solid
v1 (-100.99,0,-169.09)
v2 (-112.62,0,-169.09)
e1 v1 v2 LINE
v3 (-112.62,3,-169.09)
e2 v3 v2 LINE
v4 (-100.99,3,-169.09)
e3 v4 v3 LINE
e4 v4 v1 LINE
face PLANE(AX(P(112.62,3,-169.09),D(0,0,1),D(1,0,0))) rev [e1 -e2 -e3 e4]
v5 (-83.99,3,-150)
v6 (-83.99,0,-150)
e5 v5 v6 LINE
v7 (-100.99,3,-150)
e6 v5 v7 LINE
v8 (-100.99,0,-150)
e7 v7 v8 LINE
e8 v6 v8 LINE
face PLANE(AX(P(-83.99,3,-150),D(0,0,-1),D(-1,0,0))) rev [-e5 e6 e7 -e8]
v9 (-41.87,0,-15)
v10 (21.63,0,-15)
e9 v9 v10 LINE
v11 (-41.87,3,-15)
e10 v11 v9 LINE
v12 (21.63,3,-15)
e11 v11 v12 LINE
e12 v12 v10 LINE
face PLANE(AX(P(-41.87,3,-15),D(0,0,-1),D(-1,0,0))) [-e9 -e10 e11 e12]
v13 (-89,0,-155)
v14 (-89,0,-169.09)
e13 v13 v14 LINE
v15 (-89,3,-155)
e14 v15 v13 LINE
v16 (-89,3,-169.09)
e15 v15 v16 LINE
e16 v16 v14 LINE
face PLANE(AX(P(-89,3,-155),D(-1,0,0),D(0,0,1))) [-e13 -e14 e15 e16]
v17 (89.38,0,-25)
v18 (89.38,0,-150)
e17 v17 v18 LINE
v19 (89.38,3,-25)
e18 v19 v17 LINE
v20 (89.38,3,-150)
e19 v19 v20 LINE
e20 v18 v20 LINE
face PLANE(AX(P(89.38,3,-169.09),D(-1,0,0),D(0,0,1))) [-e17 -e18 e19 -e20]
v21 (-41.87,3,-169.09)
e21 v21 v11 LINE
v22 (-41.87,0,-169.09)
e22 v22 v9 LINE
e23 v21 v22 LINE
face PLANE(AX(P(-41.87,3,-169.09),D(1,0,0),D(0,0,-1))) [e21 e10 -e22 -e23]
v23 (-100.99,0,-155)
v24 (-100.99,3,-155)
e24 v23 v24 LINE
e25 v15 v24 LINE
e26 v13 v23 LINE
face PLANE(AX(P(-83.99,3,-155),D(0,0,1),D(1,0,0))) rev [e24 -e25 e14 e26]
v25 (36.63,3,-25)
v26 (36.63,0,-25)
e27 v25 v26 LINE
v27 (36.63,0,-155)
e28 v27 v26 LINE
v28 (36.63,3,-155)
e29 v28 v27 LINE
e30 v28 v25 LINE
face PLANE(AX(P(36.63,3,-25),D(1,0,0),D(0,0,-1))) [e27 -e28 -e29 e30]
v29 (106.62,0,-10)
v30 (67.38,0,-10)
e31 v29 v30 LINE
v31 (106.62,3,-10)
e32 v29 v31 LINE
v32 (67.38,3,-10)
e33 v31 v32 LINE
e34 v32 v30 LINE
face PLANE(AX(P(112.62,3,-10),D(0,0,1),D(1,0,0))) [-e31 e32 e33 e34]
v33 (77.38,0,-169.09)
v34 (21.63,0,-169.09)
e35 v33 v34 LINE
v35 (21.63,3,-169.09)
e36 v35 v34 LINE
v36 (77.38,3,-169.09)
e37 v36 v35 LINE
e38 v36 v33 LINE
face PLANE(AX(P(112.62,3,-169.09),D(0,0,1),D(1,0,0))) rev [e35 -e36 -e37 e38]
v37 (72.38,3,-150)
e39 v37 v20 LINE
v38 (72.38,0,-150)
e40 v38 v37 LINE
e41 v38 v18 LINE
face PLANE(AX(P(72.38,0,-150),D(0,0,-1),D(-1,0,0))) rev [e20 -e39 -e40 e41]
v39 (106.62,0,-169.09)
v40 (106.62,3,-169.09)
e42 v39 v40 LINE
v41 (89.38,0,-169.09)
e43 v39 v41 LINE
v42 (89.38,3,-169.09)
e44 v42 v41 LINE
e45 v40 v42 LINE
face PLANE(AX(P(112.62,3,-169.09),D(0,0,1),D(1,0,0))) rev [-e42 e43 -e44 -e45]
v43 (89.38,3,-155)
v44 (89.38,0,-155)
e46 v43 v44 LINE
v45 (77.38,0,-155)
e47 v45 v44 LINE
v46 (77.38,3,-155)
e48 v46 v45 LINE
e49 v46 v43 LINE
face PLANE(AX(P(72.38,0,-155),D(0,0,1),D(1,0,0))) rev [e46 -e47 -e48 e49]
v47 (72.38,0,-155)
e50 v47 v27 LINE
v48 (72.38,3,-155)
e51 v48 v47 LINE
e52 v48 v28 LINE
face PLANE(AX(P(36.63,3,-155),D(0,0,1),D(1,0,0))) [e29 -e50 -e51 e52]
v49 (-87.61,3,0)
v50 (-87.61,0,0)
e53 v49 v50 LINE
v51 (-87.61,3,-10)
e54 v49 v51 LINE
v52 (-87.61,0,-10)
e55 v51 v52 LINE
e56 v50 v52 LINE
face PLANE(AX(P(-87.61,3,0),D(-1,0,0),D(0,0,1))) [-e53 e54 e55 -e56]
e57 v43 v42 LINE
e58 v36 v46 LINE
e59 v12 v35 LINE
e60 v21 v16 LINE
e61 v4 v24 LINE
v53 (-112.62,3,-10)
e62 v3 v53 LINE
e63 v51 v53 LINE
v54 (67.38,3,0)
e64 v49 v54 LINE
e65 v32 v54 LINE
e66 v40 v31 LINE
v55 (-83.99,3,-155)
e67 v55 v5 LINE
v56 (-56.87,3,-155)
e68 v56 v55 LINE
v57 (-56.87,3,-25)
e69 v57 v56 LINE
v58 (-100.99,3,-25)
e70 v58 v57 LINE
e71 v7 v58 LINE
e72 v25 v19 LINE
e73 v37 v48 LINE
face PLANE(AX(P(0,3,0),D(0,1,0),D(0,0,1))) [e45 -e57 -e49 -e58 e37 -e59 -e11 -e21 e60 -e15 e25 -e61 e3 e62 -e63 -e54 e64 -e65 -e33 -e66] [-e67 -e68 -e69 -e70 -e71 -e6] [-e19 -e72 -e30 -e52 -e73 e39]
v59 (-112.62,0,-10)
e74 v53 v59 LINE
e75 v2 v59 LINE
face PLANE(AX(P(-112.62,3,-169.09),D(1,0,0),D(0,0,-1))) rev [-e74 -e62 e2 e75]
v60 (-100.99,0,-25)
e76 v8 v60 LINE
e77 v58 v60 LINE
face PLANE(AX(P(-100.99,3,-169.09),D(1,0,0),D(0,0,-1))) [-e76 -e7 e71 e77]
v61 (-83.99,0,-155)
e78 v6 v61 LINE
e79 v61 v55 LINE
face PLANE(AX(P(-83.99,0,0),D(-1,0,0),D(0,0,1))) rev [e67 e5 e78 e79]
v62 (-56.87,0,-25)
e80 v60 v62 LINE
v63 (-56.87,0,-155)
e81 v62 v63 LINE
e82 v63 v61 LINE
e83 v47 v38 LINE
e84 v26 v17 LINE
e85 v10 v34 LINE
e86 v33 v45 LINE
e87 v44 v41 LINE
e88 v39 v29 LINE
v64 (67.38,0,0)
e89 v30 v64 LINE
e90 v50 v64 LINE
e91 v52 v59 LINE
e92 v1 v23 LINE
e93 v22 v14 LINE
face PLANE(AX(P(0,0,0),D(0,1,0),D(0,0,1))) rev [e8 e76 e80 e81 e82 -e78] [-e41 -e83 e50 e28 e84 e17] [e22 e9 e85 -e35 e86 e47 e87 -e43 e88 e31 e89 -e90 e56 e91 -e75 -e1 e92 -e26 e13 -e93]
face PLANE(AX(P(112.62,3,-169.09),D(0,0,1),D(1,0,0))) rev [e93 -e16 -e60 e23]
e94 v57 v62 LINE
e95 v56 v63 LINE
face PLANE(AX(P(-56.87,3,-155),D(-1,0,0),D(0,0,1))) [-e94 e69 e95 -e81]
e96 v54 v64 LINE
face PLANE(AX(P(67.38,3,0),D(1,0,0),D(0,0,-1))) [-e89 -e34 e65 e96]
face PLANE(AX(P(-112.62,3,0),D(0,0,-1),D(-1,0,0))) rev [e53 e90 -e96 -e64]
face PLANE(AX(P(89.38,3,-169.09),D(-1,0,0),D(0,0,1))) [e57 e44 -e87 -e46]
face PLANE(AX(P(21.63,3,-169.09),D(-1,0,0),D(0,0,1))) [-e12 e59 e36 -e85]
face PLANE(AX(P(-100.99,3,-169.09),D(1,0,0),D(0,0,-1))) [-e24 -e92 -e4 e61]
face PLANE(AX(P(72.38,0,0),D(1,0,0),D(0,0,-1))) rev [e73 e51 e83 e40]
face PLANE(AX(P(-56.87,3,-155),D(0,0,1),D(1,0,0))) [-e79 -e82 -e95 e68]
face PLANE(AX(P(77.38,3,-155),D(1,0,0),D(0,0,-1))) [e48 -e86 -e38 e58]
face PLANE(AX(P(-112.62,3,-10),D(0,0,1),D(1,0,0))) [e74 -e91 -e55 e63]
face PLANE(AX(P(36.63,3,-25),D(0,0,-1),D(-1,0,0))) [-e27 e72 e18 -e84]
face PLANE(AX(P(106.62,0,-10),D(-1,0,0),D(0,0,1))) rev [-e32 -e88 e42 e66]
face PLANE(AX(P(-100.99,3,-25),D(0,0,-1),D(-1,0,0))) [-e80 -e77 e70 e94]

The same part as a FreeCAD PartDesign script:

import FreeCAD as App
import Part
import Sketcher
Q = App.Units.Quantity

doc = App.newDocument("Part")
body = doc.addObject("PartDesign::Body", "Body")

# Sketch on XZ plane
sketch1 = body.newObject("Sketcher::SketchObject", "Sketch")
sketch1.AttachmentSupport = (doc.getObject("XZ_Plane"), [""])
sketch1.MapMode = "FlatFace"
sketch1.addGeometry([
    Part.LineSegment(App.Vector(-112.62, -169.09, 0), App.Vector(-112.62, 0, 0)),
    Part.LineSegment(App.Vector(-112.62, 0, 0), App.Vector(112.62, 0, 0)),
    Part.LineSegment(App.Vector(112.62, 0, 0), App.Vector(112.62, -169.09, 0)),
    Part.LineSegment(App.Vector(112.62, -169.09, 0), App.Vector(-112.62, -169.09, 0)),
], False)
sketch1.addConstraint([
    Sketcher.Constraint("Coincident", 0, 2, 1, 1),
    Sketcher.Constraint("Coincident", 1, 2, 2, 1),
    Sketcher.Constraint("Coincident", 2, 2, 3, 1),
    Sketcher.Constraint("Coincident", 3, 2, 0, 1),
    Sketcher.Constraint("Vertical", 0),
    Sketcher.Constraint("Horizontal", 1),
    Sketcher.Constraint("Vertical", 2),
    Sketcher.Constraint("Horizontal", 3),
    Sketcher.Constraint("Symmetric", 0, 2, 1, 2, -1, 1),
    Sketcher.Constraint("DistanceX", 1, 1, 1, 2, Q("225.24 mm")),
    Sketcher.Constraint("DistanceY", 0, 1, 0, 2, Q("169.09 mm")),
])
pad1 = body.newObject("PartDesign::Pad", "Pad")
pad1.Profile = sketch1
pad1.Length = 3
pad1.Reversed = True

# Sketch on XZ plane
sketch2 = body.newObject("Sketcher::SketchObject", "Sketch001")
sketch2.AttachmentSupport = (doc.getObject("XZ_Plane"), [""])
sketch2.MapMode = "FlatFace"
sketch2.addGeometry([
    Part.LineSegment(App.Vector(36.63, -155, 0), App.Vector(36.63, -25, 0)),  # 0
    Part.LineSegment(App.Vector(36.63, -25, 0), App.Vector(89.38, -25, 0)),  # 1
    Part.LineSegment(App.Vector(89.38, -25, 0), App.Vector(89.38, -169.09, 0)),  # 2
    Part.LineSegment(App.Vector(89.38, -169.09, 0), App.Vector(77.38, -169.09, 0)),  # 3
    Part.LineSegment(App.Vector(77.38, -169.09, 0), App.Vector(77.38, -155, 0)),  # 4
    Part.LineSegment(App.Vector(77.38, -155, 0), App.Vector(36.63, -155, 0)),  # 5
    Part.LineSegment(App.Vector(-89, -169.09, 0), App.Vector(-100.99, -169.09, 0)),  # 6
    Part.LineSegment(App.Vector(-100.99, -169.09, 0), App.Vector(-100.99, -25, 0)),  # 7
    Part.LineSegment(App.Vector(-100.99, -25, 0), App.Vector(-56.87, -25, 0)),  # 8
    Part.LineSegment(App.Vector(-56.87, -25, 0), App.Vector(-56.87, -155, 0)),  # 9
    Part.LineSegment(App.Vector(-56.87, -155, 0), App.Vector(-89, -155, 0)),  # 10
    Part.LineSegment(App.Vector(-89, -155, 0), App.Vector(-89, -169.09, 0)),  # 11
    Part.LineSegment(App.Vector(-41.87, -169.09, 0), App.Vector(-41.87, -15, 0)),  # 12
    Part.LineSegment(App.Vector(-41.87, -15, 0), App.Vector(21.63, -15, 0)),  # 13
    Part.LineSegment(App.Vector(21.63, -15, 0), App.Vector(21.63, -169.09, 0)),  # 14
    Part.LineSegment(App.Vector(21.63, -169.09, 0), App.Vector(-41.87, -169.09, 0)),  # 15
    Part.LineSegment(App.Vector(67.38, -10, 0), App.Vector(67.38, 0, 0)),  # 16
    Part.LineSegment(App.Vector(67.38, 0, 0), App.Vector(112.62, 0, 0)),  # 17
    Part.LineSegment(App.Vector(112.62, 0, 0), App.Vector(112.62, -10, 0)),  # 18
    Part.LineSegment(App.Vector(112.62, -10, 0), App.Vector(67.38, -10, 0)),  # 19
    Part.LineSegment(App.Vector(-112.62, -10, 0), App.Vector(-112.62, 0, 0)),  # 20
    Part.LineSegment(App.Vector(-112.62, 0, 0), App.Vector(-87.61, 0, 0)),  # 21
    Part.LineSegment(App.Vector(-87.61, 0, 0), App.Vector(-87.61, -10, 0)),  # 22
    Part.LineSegment(App.Vector(-87.61, -10, 0), App.Vector(-112.62, -10, 0)),  # 23
], False)
sketch2.addConstraint([
    Sketcher.Constraint("Coincident", 0, 2, 1, 1),
    Sketcher.Constraint("Coincident", 1, 2, 2, 1),
    Sketcher.Constraint("Coincident", 2, 2, 3, 1),
    Sketcher.Constraint("Coincident", 3, 2, 4, 1),
    Sketcher.Constraint("Coincident", 4, 2, 5, 1),
    Sketcher.Constraint("Coincident", 5, 2, 0, 1),
    Sketcher.Constraint("Coincident", 6, 2, 7, 1),
    Sketcher.Constraint("Coincident", 7, 2, 8, 1),
    Sketcher.Constraint("Coincident", 8, 2, 9, 1),
    Sketcher.Constraint("Coincident", 9, 2, 10, 1),
    Sketcher.Constraint("Coincident", 10, 2, 11, 1),
    Sketcher.Constraint("Coincident", 11, 2, 6, 1),
    Sketcher.Constraint("Coincident", 12, 2, 13, 1),
    Sketcher.Constraint("Coincident", 13, 2, 14, 1),
    Sketcher.Constraint("Coincident", 14, 2, 15, 1),
    Sketcher.Constraint("Coincident", 15, 2, 12, 1),
    Sketcher.Constraint("Coincident", 16, 2, 17, 1),
    Sketcher.Constraint("Coincident", 17, 2, 18, 1),
    Sketcher.Constraint("Coincident", 18, 2, 19, 1),
    Sketcher.Constraint("Coincident", 19, 2, 16, 1),
    Sketcher.Constraint("Coincident", 20, 2, 21, 1),
    Sketcher.Constraint("Coincident", 21, 2, 22, 1),
    Sketcher.Constraint("Coincident", 22, 2, 23, 1),
    Sketcher.Constraint("Coincident", 23, 2, 20, 1),
    Sketcher.Constraint("Vertical", 0),
    Sketcher.Constraint("Horizontal", 1),
    Sketcher.Constraint("Vertical", 2),
    Sketcher.Constraint("Horizontal", 3),
    Sketcher.Constraint("Vertical", 4),
    Sketcher.Constraint("Horizontal", 5),
    Sketcher.Constraint("Horizontal", 6),
    Sketcher.Constraint("Vertical", 7),
    Sketcher.Constraint("Horizontal", 8),
    Sketcher.Constraint("Vertical", 9),
    Sketcher.Constraint("Horizontal", 10),
    Sketcher.Constraint("Vertical", 11),
    Sketcher.Constraint("Vertical", 12),
    Sketcher.Constraint("Horizontal", 13),
    Sketcher.Constraint("Vertical", 14),
    Sketcher.Constraint("Horizontal", 15),
    Sketcher.Constraint("Vertical", 16),
    Sketcher.Constraint("Horizontal", 17),
    Sketcher.Constraint("Vertical", 18),
    Sketcher.Constraint("Horizontal", 19),
    Sketcher.Constraint("Vertical", 20),
    Sketcher.Constraint("Horizontal", 21),
    Sketcher.Constraint("Vertical", 22),
    Sketcher.Constraint("Horizontal", 23),
    Sketcher.Constraint("Symmetric", 17, 2, 20, 2, -1, 1),
    Sketcher.Constraint("PointOnObject", 16, 2, -1),
    Sketcher.Constraint("Horizontal", 3, 2, 6, 2),
    Sketcher.Constraint("Horizontal", 1, 2, 7, 2),
    Sketcher.Constraint("Horizontal", 5, 2, 9, 2),
    Sketcher.Constraint("Horizontal", 11, 2, 14, 2),
    Sketcher.Constraint("Horizontal", 19, 2, 22, 2),
    Sketcher.Constraint("DistanceX", 3, 2, 3, 1, Q("12 mm")),
    Sketcher.Constraint("DistanceY", 0, 1, 0, 2, Q("130 mm")),
    Sketcher.Constraint("DistanceY", 16, 1, 16, 2, Q("10 mm")),
    Sketcher.Constraint("DistanceX", 13, 1, 13, 2, Q("63.5 mm")),
    Sketcher.Constraint("DistanceY", 0, 2, -1, 1, Q("25 mm")),
    Sketcher.Constraint("DistanceX", 10, 2, -1, 1, Q("89 mm")),
    Sketcher.Constraint("DistanceY", 12, 2, -1, 1, Q("15 mm")),
    Sketcher.Constraint("DistanceX", 8, 2, 12, 2, Q("15 mm")),
    Sketcher.Constraint("DistanceX", 13, 2, 0, 2, Q("15 mm")),
    Sketcher.Constraint("DistanceX", 16, 2, 1, 2, Q("22 mm")),
    Sketcher.Constraint("DistanceX", 1, 1, 1, 2, Q("52.75 mm")),
    Sketcher.Constraint("DistanceX", 6, 2, 6, 1, Q("11.99 mm")),
    Sketcher.Constraint("DistanceX", 8, 1, 8, 2, Q("44.12 mm")),
    Sketcher.Constraint("DistanceX", 17, 1, 17, 2, Q("45.24 mm")),
    Sketcher.Constraint("DistanceX", 21, 1, 21, 2, Q("25.01 mm")),
    Sketcher.Constraint("DistanceY", 2, 2, 2, 1, Q("144.09 mm")),
])
pocket1 = body.newObject("PartDesign::Pocket", "Pocket")
pocket1.Profile = sketch2
pocket1.Type = "ThroughAll"

# Sketch on YZ plane
sketch3 = body.newObject("Sketcher::SketchObject", "Sketch002")
sketch3.AttachmentSupport = (doc.getObject("YZ_Plane"), [""])
sketch3.MapMode = "FlatFace"
sketch3.AttachmentOffset = App.Placement(App.Vector(0, 0, 89.38), App.Rotation())
sketch3.addGeometry([
    Part.LineSegment(App.Vector(3, -155, 0), App.Vector(0, -155, 0)),
    Part.LineSegment(App.Vector(0, -155, 0), App.Vector(0, -150, 0)),
    Part.LineSegment(App.Vector(0, -150, 0), App.Vector(3, -150, 0)),
    Part.LineSegment(App.Vector(3, -150, 0), App.Vector(3, -155, 0)),
], False)
sketch3.addConstraint([
    Sketcher.Constraint("Coincident", 0, 2, 1, 1),
    Sketcher.Constraint("Coincident", 1, 2, 2, 1),
    Sketcher.Constraint("Coincident", 2, 2, 3, 1),
    Sketcher.Constraint("Coincident", 3, 2, 0, 1),
    Sketcher.Constraint("Horizontal", 0),
    Sketcher.Constraint("Vertical", 1),
    Sketcher.Constraint("Horizontal", 2),
    Sketcher.Constraint("Vertical", 3),
    Sketcher.Constraint("PointOnObject", 0, 2, -2),
    Sketcher.Constraint("DistanceX", 0, 2, 0, 1, Q("3 mm")),
    Sketcher.Constraint("DistanceY", 1, 1, 1, 2, Q("5 mm")),
    Sketcher.Constraint("DistanceY", 0, 2, -1, 1, Q("155 mm")),
])
pad2 = body.newObject("PartDesign::Pad", "Pad001")
pad2.Profile = sketch3
pad2.Length = 17
pad2.Reversed = True

# Sketch on YZ plane
sketch4 = body.newObject("Sketcher::SketchObject", "Sketch003")
sketch4.AttachmentSupport = (doc.getObject("YZ_Plane"), [""])
sketch4.MapMode = "FlatFace"
sketch4.AttachmentOffset = App.Placement(App.Vector(0, 0, -100.99), App.Rotation())
sketch4.addGeometry([
    Part.LineSegment(App.Vector(3, -150, 0), App.Vector(0, -150, 0)),
    Part.LineSegment(App.Vector(0, -150, 0), App.Vector(0, -155, 0)),
    Part.LineSegment(App.Vector(0, -155, 0), App.Vector(3, -155, 0)),
    Part.LineSegment(App.Vector(3, -155, 0), App.Vector(3, -150, 0)),
], False)
sketch4.addConstraint([
    Sketcher.Constraint("Coincident", 0, 2, 1, 1),
    Sketcher.Constraint("Coincident", 1, 2, 2, 1),
    Sketcher.Constraint("Coincident", 2, 2, 3, 1),
    Sketcher.Constraint("Coincident", 3, 2, 0, 1),
    Sketcher.Constraint("Horizontal", 0),
    Sketcher.Constraint("Vertical", 1),
    Sketcher.Constraint("Horizontal", 2),
    Sketcher.Constraint("Vertical", 3),
    Sketcher.Constraint("PointOnObject", 0, 2, -2),
    Sketcher.Constraint("DistanceX", 0, 2, 0, 1, Q("3 mm")),
    Sketcher.Constraint("DistanceY", 1, 2, 1, 1, Q("5 mm")),
    Sketcher.Constraint("DistanceY", 0, 2, -1, 1, Q("150 mm")),
])
pad3 = body.newObject("PartDesign::Pad", "Pad002")
pad3.Profile = sketch4
pad3.Length = 17

# Sketch on XZ plane
sketch5 = body.newObject("Sketcher::SketchObject", "Sketch004")
sketch5.AttachmentSupport = (doc.getObject("XZ_Plane"), [""])
sketch5.MapMode = "FlatFace"
sketch5.AttachmentOffset = App.Placement(App.Vector(0, 0, -3), App.Rotation())
sketch5.addGeometry([
    Part.LineSegment(App.Vector(106.62, -169.09, 0), App.Vector(106.62, -10, 0)),
    Part.LineSegment(App.Vector(106.62, -10, 0), App.Vector(112.62, -10, 0)),
    Part.LineSegment(App.Vector(112.62, -10, 0), App.Vector(112.62, -169.09, 0)),
    Part.LineSegment(App.Vector(112.62, -169.09, 0), App.Vector(106.62, -169.09, 0)),
], False)
sketch5.addConstraint([
    Sketcher.Constraint("Coincident", 0, 2, 1, 1),
    Sketcher.Constraint("Coincident", 1, 2, 2, 1),
    Sketcher.Constraint("Coincident", 2, 2, 3, 1),
    Sketcher.Constraint("Coincident", 3, 2, 0, 1),
    Sketcher.Constraint("Vertical", 0),
    Sketcher.Constraint("Horizontal", 1),
    Sketcher.Constraint("Vertical", 2),
    Sketcher.Constraint("Horizontal", 3),
    Sketcher.Constraint("DistanceX", 1, 1, 1, 2, Q("6 mm")),
    Sketcher.Constraint("DistanceY", 0, 2, -1, 1, Q("10 mm")),
    Sketcher.Constraint("DistanceY", 0, 1, 0, 2, Q("159.09 mm")),
    Sketcher.Constraint("DistanceX", -1, 1, 0, 2, Q("106.62 mm")),
])
pocket2 = body.newObject("PartDesign::Pocket", "Pocket001")
pocket2.Profile = sketch5
pocket2.Type = "ThroughAll"
pocket2.Reversed = True

doc.recompute()
